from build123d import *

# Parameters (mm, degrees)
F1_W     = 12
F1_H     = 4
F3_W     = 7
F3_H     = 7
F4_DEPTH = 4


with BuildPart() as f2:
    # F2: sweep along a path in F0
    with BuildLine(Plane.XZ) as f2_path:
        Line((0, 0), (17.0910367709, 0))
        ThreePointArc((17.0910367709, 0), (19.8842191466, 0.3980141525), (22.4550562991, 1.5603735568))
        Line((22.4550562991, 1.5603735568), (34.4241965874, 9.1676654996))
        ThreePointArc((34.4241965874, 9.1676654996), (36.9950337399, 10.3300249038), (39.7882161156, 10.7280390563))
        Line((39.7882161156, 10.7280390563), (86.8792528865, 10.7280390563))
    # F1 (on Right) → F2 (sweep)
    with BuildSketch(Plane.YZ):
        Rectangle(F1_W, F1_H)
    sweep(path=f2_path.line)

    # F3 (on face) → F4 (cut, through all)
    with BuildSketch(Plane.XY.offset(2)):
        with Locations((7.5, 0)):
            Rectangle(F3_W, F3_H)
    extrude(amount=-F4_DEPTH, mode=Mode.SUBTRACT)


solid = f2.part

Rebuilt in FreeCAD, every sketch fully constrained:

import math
import FreeCAD as App
import Part
import Sketcher

V = App.Vector
Q = App.Units.Quantity


def add_polygon(sketch, points):
    """Adds a closed chain of lines whose ends are joined by coincident constraints."""
    first, n = sketch.GeometryCount, len(points)
    for a, b in zip(points, points[1:] + points[:1]):
        sketch.addGeometry(Part.LineSegment(App.Vector(*a, 0), App.Vector(*b, 0)), False)
    for i in range(n):
        sketch.addConstraint(Sketcher.Constraint("Coincident", first + i, 2, first + (i + 1) % n, 1))

doc = App.newDocument("Part")
body = doc.addObject("PartDesign::Body", "Body")

# Sketch on YZ plane
sketch1 = doc.addObject("Sketcher::SketchObject", "Sketch")
body.addObject(sketch1)
sketch1.AttachmentSupport = (doc.YZ_Plane, [""])
sketch1.MapMode = "FlatFace"
add_polygon(sketch1, [(-6, 2), (-6, -2), (6, -2), (6, 2)])  # lines 0-3
sketch1.addConstraint([
    Sketcher.Constraint("Vertical", 0),
    Sketcher.Constraint("Horizontal", 1),
    Sketcher.Constraint("Vertical", 2),
    Sketcher.Constraint("Horizontal", 3),
    Sketcher.Constraint("Symmetric", 0, 2, 2, 2, -1, 1),
    Sketcher.Constraint("DistanceX", 1, 1, 1, 2, Q("12 mm")),
    Sketcher.Constraint("DistanceY", 0, 2, 0, 1, Q("4 mm")),
])

# Sketch on XZ plane
sketch2 = doc.addObject("Sketcher::SketchObject", "Sketch001")
body.addObject(sketch2)
sketch2.AttachmentSupport = (doc.XZ_Plane, [""])
sketch2.MapMode = "FlatFace"
sketch2.addGeometry([
    Part.LineSegment(V(0, 0, 0), V(17.091037, 0, 0)),  # 0
    Part.ArcOfCircle(Part.Circle(V(17.091037, 10, 0), V(0, 0, 1), 10), math.radians(-90), math.radians(-57.560962)),  # 1
    Part.LineSegment(V(22.455056, 1.560374, 0), V(34.424197, 9.167666, 0)),  # 2
    Part.ArcOfCircle(Part.Circle(V(39.788216, 0.728039, 0), V(0, 0, 1), 10), math.radians(90), math.radians(122.439038)),  # 3
    Part.LineSegment(V(39.788216, 10.728039, 0), V(86.879253, 10.728039, 0)),  # 4
], False)
sketch2.addConstraint([
    Sketcher.Constraint("Tangent", 0, 2, 1, 1),
    Sketcher.Constraint("Tangent", 1, 2, 2, 1),
    Sketcher.Constraint("Tangent", 2, 2, 3, 2),
    Sketcher.Constraint("Tangent", 3, 1, 4, 1),
    Sketcher.Constraint("Horizontal", 0),
    Sketcher.Constraint("Horizontal", 4),
    Sketcher.Constraint("Coincident", 0, 1, -1, 1),
    Sketcher.Constraint("Equal", 1, 3),
    Sketcher.Constraint("Radius", 1, Q("10 mm")),
    Sketcher.Constraint("DistanceX", 0, 1, 0, 2, Q("17.091037 mm")),
    Sketcher.Constraint("DistanceX", 4, 1, 4, 2, Q("47.091037 mm")),
    Sketcher.Constraint("DistanceY", -1, 1, 3, 3, Q("0.728039 mm")),
    Sketcher.Constraint("DistanceX", 1, 3, 3, 3, Q("22.697179 mm")),
])
doc.recompute()

additivepipe = doc.addObject("PartDesign::AdditivePipe", "AdditivePipe")
body.addObject(additivepipe)
additivepipe.Profile = sketch1
additivepipe.Spine = (sketch2, ["Edge1", "Edge2", "Edge3", "Edge4", "Edge5"])

# Sketch on XY plane
sketch3 = doc.addObject("Sketcher::SketchObject", "Sketch002")
body.addObject(sketch3)
sketch3.AttachmentSupport = (doc.XY_Plane, [""])
sketch3.MapMode = "FlatFace"
sketch3.AttachmentOffset = App.Placement(V(0, 0, 2), App.Rotation())
add_polygon(sketch3, [(4, 3.5), (4, -3.5), (11, -3.5), (11, 3.5)])  # lines 0-3
sketch3.addConstraint([
    Sketcher.Constraint("Vertical", 0),
    Sketcher.Constraint("Horizontal", 1),
    Sketcher.Constraint("Vertical", 2),
    Sketcher.Constraint("Horizontal", 3),
    Sketcher.Constraint("Equal", 3, 0),
    Sketcher.Constraint("DistanceX", 1, 1, 1, 2, Q("7 mm")),
    Sketcher.Constraint("DistanceX", -1, 1, 0, 2, Q("4 mm")),
    Sketcher.Constraint("DistanceY", 0, 2, -1, 1, Q("3.5 mm")),
])
pocket1 = doc.addObject("PartDesign::Pocket", "Pocket")
body.addObject(pocket1)
pocket1.Profile = sketch3
pocket1.Type = "ThroughAll"

doc.recompute()
